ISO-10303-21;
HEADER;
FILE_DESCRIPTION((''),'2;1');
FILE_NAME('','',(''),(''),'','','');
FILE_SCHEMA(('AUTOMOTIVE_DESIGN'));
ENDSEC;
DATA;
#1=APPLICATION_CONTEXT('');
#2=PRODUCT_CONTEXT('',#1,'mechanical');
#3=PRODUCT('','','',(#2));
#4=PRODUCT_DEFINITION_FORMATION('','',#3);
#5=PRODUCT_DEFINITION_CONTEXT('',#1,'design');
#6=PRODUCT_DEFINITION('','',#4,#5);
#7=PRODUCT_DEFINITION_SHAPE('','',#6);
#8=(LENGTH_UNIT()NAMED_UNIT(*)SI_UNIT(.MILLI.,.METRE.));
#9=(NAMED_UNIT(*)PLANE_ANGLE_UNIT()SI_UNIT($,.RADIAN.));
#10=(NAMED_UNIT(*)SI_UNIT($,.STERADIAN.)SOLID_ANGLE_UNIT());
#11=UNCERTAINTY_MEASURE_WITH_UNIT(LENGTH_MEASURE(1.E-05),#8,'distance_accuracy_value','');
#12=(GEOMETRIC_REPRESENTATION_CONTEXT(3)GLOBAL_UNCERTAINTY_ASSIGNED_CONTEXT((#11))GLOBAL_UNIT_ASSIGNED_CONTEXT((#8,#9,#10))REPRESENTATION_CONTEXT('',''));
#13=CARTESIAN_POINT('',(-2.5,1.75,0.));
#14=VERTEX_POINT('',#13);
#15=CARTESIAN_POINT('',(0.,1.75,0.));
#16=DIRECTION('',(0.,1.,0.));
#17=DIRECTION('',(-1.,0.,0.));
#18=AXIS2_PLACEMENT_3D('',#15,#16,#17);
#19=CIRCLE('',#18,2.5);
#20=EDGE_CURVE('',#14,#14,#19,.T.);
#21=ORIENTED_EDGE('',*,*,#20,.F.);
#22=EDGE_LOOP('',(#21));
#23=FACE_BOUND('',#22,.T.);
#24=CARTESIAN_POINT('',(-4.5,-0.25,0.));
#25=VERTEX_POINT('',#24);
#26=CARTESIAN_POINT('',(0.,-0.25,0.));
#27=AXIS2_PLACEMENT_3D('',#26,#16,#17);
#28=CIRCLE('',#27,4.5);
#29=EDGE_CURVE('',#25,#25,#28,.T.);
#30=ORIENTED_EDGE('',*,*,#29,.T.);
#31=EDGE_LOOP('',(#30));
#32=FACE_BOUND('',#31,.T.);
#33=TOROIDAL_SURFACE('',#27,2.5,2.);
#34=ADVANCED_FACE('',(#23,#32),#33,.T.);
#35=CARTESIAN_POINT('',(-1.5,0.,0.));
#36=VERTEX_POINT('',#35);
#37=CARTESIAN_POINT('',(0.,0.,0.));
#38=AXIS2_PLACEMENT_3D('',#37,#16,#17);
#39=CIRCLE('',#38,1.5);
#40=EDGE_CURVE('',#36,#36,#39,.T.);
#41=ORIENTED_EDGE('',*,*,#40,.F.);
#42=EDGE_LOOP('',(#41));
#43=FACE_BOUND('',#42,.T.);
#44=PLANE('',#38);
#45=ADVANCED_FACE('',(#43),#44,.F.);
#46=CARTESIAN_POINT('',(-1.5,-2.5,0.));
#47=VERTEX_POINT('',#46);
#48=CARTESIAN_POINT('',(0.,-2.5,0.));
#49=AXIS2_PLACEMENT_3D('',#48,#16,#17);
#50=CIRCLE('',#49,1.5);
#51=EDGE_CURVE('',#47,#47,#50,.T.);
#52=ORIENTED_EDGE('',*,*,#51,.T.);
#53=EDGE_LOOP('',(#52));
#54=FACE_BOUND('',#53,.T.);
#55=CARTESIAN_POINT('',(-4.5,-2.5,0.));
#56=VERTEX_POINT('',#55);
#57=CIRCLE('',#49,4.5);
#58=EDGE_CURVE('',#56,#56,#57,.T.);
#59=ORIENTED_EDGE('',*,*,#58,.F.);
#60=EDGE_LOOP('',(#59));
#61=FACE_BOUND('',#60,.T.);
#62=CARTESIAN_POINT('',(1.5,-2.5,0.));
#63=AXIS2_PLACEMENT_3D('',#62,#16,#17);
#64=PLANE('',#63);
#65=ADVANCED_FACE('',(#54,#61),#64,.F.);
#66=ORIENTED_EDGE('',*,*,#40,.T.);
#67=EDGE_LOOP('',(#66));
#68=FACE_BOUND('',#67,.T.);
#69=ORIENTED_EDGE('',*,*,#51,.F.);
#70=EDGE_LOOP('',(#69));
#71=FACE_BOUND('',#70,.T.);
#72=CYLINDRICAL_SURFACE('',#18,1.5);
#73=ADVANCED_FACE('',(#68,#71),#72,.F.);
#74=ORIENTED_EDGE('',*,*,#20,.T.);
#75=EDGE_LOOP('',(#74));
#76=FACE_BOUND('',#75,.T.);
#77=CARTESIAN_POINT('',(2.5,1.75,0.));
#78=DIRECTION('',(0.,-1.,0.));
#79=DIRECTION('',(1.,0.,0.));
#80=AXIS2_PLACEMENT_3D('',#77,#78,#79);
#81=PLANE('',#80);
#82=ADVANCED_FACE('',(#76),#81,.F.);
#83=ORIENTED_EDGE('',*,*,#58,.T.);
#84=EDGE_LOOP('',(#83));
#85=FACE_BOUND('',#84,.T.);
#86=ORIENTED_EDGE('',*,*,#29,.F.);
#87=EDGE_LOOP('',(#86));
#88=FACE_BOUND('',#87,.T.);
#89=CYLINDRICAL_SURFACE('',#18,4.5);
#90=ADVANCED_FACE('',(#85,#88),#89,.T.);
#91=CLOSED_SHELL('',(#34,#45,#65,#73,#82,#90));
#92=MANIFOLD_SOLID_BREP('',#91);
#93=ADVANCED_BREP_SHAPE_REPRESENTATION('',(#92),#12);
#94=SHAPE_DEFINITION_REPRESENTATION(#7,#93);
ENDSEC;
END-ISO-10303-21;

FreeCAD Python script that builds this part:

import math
import FreeCAD as App
import Part
import Sketcher

V = App.Vector
Q = App.Units.Quantity

doc = App.newDocument("Part")
body = doc.addObject("PartDesign::Body", "Body")

# Sketch on XY plane
sketch1 = doc.addObject("Sketcher::SketchObject", "Sketch")
body.addObject(sketch1)
sketch1.AttachmentSupport = (doc.XY_Plane, [""])
sketch1.MapMode = "FlatFace"
sketch1.addGeometry([
    Part.LineSegment(V(0, 0, 0), V(1.5, 0, 0)),  # 0
    Part.LineSegment(V(1.5, 0, 0), V(1.5, -2.5, 0)),  # 1
    Part.LineSegment(V(1.5, -2.5, 0), V(4.5, -2.5, 0)),  # 2
    Part.LineSegment(V(4.5, -2.5, 0), V(4.5, -0.25, 0)),  # 3
    Part.ArcOfCircle(Part.Circle(V(2.5, -0.25, 0), V(0, 0, 1), 2), math.radians(0), math.radians(90)),  # 4
    Part.LineSegment(V(2.5, 1.75, 0), V(0, 1.75, 0)),  # 5
    Part.LineSegment(V(0, 1.75, 0), V(0, 0, 0)),  # 6
], False)
sketch1.addConstraint([
    Sketcher.Constraint("Coincident", 0, 2, 1, 1),
    Sketcher.Constraint("Coincident", 1, 2, 2, 1),
    Sketcher.Constraint("Coincident", 2, 2, 3, 1),
    Sketcher.Constraint("Tangent", 3, 2, 4, 1),
    Sketcher.Constraint("Tangent", 4, 2, 5, 1),
    Sketcher.Constraint("Coincident", 5, 2, 6, 1),
    Sketcher.Constraint("Coincident", 6, 2, 0, 1),
    Sketcher.Constraint("Horizontal", 0),
    Sketcher.Constraint("Vertical", 1),
    Sketcher.Constraint("Horizontal", 2),
    Sketcher.Constraint("Vertical", 3),
    Sketcher.Constraint("Horizontal", 5),
    Sketcher.Constraint("Vertical", 6),
    Sketcher.Constraint("Coincident", 6, 2, -1, 1),
    Sketcher.Constraint("Equal", 5, 1),
    Sketcher.Constraint("Radius", 4, Q("2 mm")),
    Sketcher.Constraint("DistanceX", 2, 1, 2, 2, Q("3 mm")),
    Sketcher.Constraint("DistanceX", 0, 1, 0, 2, Q("1.5 mm")),
    Sketcher.Constraint("DistanceY", 3, 1, 3, 2, Q("2.25 mm")),
])
revolution = doc.addObject("PartDesign::Revolution", "Revolution")
body.addObject(revolution)
revolution.Profile = sketch1
revolution.ReferenceAxis = (sketch1, ["V_Axis"])
revolution.Angle = 360

doc.recompute()
